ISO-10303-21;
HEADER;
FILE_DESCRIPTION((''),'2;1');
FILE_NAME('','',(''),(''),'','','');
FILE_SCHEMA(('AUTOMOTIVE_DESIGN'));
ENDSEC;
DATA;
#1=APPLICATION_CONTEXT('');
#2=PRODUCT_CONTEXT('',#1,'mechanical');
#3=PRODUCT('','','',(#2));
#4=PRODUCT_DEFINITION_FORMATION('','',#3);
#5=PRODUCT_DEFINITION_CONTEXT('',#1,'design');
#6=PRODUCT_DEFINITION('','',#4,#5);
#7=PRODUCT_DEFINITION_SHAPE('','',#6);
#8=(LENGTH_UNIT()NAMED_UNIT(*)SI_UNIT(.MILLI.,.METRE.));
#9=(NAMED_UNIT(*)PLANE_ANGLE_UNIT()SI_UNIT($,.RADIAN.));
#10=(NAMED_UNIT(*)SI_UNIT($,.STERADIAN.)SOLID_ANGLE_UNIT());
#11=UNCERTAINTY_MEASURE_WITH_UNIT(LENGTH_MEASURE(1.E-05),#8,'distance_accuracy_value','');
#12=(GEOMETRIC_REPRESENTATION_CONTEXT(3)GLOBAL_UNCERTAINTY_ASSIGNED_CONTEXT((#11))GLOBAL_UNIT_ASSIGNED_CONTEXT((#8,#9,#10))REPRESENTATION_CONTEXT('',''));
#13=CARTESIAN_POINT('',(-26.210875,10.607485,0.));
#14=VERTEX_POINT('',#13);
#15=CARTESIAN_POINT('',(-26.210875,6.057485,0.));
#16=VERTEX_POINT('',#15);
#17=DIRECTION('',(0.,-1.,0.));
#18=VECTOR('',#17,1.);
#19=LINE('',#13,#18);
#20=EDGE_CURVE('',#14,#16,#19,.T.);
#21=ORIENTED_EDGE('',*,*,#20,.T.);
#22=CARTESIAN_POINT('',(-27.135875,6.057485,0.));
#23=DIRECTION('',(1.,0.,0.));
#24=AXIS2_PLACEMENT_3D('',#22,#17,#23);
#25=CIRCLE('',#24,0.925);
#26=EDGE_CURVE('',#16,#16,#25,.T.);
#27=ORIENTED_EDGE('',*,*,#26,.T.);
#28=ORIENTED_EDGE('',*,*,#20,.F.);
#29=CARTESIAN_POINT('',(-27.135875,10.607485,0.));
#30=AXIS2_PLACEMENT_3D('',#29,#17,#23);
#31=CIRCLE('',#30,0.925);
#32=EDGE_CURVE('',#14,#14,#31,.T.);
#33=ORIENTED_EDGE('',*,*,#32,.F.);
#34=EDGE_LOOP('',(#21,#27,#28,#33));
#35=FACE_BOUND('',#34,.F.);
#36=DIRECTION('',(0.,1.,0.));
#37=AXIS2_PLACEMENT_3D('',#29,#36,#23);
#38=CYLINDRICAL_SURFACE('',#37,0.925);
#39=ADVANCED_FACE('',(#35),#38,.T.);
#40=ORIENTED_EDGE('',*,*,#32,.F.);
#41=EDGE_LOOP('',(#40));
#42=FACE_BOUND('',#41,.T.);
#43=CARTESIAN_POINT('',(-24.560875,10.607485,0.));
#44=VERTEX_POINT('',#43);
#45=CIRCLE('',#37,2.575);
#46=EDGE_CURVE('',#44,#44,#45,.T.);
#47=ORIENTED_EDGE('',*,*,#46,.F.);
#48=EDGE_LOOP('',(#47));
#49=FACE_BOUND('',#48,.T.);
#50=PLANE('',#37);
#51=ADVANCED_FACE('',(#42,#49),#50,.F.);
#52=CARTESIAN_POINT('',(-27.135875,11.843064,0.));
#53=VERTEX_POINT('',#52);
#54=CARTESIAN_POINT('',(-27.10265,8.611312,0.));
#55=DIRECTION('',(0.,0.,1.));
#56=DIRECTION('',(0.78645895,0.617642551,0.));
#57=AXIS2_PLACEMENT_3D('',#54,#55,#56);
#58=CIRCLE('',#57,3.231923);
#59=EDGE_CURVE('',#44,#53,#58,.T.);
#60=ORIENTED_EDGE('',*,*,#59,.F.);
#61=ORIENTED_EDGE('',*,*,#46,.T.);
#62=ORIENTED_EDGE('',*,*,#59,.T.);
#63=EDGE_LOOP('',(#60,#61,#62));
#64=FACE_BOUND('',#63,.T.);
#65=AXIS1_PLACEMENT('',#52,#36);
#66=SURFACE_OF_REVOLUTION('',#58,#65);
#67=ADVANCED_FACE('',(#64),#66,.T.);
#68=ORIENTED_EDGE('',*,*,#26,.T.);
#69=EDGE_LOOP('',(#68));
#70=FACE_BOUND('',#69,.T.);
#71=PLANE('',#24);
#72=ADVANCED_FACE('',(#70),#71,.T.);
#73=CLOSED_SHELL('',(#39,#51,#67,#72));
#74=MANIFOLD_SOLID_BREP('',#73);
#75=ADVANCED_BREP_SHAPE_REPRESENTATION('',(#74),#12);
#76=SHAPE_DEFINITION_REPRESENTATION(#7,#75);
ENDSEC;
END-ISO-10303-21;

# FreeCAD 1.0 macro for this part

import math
import FreeCAD as App
import Part
import Sketcher
from FreeCAD import Vector

doc = App.newDocument("Part")
body = doc.addObject("PartDesign::Body", "Body")

# Sketch on XY plane
sketch1 = doc.addObject("Sketcher::SketchObject", "Sketch")
body.addObject(sketch1)
sketch1.AttachmentSupport = (doc.XY_Plane, [""])
sketch1.MapMode = "FlatFace"
sketch1.addGeometry([
    Part.LineSegment(Vector(-27.1, 11.8, 0), Vector(-27.1, 10.6, 0)),
    Part.LineSegment(Vector(-27.1, 10.6, 0), Vector(-24.6, 10.6, 0)),
    Part.ArcOfCircle(Part.Circle(Vector(-27.1, 8.6, 0), Vector(0, 0, 1), 3.2), math.radians(38), math.radians(91)),
], False)
sketch1.addGeometry(Part.LineSegment(Vector(-27.1, 8.6, 0), Vector(-27.1, 11.8, 0)), True)  # axis
sketch1.addConstraint([
    Sketcher.Constraint("Coincident", 0, 2, 1, 1),
    Sketcher.Constraint("Coincident", 1, 2, 2, 1),
    Sketcher.Constraint("Coincident", 2, 2, 0, 1),
    Sketcher.Constraint("Vertical", 0),
    Sketcher.Constraint("Horizontal", 1),
    Sketcher.Constraint("Vertical", 3),
    Sketcher.Constraint("Coincident", 3, 2, 2, 2),
    Sketcher.Constraint("Horizontal", 2, 3, 3, 1),
    Sketcher.Constraint("DistanceX", 1, 1, 1, 2, 2.575),
    Sketcher.Constraint("Radius", 2, 3.231923),
    Sketcher.Constraint("DistanceY", 0, 2, 0, 1, 1.235579),
    Sketcher.Constraint("DistanceX", 2, 3, -1, 1, 27.10265),
    Sketcher.Constraint("DistanceY", -1, 1, 2, 3, 8.611312),
])
revolution = doc.addObject("PartDesign::Revolution", "Revolution")
body.addObject(revolution)
revolution.Profile = sketch1
revolution.ReferenceAxis = (sketch1, ["Axis0"])
revolution.Angle = 360

# Sketch on XZ plane
sketch2 = doc.addObject("Sketcher::SketchObject", "Sketch001")
body.addObject(sketch2)
sketch2.AttachmentSupport = (doc.XZ_Plane, [""])
sketch2.MapMode = "FlatFace"
sketch2.AttachmentOffset = App.Placement(Vector(0, 0, -10.607485), App.Rotation())
sketch2.addGeometry(Part.Circle(Vector(-27.1, 0, 0), Vector(0, 0, 1), 0.9), False)
sketch2.addConstraint([
    Sketcher.Constraint("PointOnObject", 0, 3, -1),
    Sketcher.Constraint("Diameter", 0, 1.85),
    Sketcher.Constraint("DistanceX", 0, 3, -1, 1, 27.135875),
])
pad1 = doc.addObject("PartDesign::Pad", "Pad")
body.addObject(pad1)
pad1.Profile = sketch2
pad1.Length = 4.55

doc.recompute()
